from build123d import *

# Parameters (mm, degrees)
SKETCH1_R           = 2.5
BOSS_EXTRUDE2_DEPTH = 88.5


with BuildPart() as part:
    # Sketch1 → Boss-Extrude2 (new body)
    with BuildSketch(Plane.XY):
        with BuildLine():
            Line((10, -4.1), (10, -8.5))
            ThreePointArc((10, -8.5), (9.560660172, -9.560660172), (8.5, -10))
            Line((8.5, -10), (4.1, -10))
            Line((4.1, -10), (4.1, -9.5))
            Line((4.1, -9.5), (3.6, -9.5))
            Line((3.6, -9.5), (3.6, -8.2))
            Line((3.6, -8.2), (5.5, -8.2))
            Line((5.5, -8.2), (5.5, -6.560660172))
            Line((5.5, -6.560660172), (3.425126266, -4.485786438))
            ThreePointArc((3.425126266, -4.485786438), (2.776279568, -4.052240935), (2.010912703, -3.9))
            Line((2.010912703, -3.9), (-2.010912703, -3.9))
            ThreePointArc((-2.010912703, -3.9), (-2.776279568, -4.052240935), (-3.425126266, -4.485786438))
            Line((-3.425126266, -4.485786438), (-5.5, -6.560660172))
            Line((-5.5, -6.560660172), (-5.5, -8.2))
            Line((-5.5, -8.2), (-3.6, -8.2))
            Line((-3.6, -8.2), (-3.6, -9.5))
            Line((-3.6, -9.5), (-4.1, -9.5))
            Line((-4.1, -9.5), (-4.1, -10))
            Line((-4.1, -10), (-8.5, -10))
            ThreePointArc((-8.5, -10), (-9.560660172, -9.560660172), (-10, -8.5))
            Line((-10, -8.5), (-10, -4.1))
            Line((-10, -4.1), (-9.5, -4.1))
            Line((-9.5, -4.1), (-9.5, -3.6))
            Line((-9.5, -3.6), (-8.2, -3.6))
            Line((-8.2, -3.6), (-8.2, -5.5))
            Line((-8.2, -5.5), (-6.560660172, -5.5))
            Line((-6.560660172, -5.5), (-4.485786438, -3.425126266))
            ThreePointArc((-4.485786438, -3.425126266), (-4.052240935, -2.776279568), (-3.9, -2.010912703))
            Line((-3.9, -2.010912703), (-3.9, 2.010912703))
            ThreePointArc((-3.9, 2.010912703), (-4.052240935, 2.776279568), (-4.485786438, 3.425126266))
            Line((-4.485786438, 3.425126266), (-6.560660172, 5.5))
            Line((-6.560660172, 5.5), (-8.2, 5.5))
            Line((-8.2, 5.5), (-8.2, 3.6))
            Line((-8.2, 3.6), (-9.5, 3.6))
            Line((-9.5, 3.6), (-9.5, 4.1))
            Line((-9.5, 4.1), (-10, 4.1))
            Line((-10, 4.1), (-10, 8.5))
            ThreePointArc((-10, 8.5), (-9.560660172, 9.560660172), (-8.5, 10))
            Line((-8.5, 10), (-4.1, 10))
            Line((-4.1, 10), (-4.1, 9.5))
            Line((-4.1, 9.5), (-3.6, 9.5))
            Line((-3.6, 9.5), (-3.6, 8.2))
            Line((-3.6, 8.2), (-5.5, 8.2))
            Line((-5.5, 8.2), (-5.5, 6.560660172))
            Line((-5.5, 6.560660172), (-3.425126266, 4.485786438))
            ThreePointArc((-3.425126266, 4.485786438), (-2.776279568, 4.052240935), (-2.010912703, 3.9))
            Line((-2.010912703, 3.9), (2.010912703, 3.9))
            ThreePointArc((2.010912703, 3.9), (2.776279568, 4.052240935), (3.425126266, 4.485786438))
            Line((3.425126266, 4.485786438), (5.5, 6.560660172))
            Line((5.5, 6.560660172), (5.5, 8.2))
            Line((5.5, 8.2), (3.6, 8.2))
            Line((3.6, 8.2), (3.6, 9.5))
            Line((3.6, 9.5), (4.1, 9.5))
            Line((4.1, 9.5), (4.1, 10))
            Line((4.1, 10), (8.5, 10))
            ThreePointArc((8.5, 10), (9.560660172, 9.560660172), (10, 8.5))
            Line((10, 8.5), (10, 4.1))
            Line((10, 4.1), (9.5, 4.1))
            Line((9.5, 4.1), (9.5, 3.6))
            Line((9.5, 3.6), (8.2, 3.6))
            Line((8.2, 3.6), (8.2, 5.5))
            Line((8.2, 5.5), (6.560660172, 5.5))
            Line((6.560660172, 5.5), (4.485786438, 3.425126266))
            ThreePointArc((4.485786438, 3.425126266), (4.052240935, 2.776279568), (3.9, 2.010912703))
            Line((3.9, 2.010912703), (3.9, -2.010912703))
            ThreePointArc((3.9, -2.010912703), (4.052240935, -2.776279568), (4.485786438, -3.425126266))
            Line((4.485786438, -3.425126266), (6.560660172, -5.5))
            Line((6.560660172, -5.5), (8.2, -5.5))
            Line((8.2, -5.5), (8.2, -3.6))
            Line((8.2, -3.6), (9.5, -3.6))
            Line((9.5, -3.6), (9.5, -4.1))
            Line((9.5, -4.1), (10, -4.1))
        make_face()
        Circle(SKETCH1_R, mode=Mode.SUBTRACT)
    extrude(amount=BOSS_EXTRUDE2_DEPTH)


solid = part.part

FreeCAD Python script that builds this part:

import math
import FreeCAD as App
import Part
import Sketcher

V = App.Vector
Q = App.Units.Quantity

doc = App.newDocument("Part")
body = doc.addObject("PartDesign::Body", "Body")

sketch1 = doc.addObject("Sketcher::SketchObject", "Sketch")
body.addObject(sketch1)
sketch1.AttachmentSupport = (doc.XY_Plane, [""])
sketch1.MapMode = "FlatFace"
sketch1.addGeometry([
    Part.LineSegment(V(10, -8.5, 0), V(10, -4.1, 0)),
    Part.LineSegment(V(10, -4.1, 0), V(9.5, -4.1, 0)),
    Part.LineSegment(V(9.5, -4.1, 0), V(9.5, -3.6, 0)),
    Part.LineSegment(V(9.5, -3.6, 0), V(8.2, -3.6, 0)),
    Part.LineSegment(V(8.2, -3.6, 0), V(8.2, -5.5, 0)),
    Part.LineSegment(V(8.2, -5.5, 0), V(6.56, -5.5, 0)),
    Part.LineSegment(V(6.56, -5.5, 0), V(4.49, -3.43, 0)),
    Part.ArcOfCircle(Part.Circle(V(5.9, -2.01, 0), V(0, 0, 1), 2), math.radians(180), math.radians(225)),
    Part.LineSegment(V(3.9, -2.01, 0), V(3.9, 2.01, 0)),
    Part.ArcOfCircle(Part.Circle(V(5.9, 2.01, 0), V(0, 0, 1), 2), math.radians(135), math.radians(180)),
    Part.LineSegment(V(4.49, 3.43, 0), V(6.56, 5.5, 0)),
    Part.LineSegment(V(6.56, 5.5, 0), V(8.2, 5.5, 0)),
    Part.LineSegment(V(8.2, 5.5, 0), V(8.2, 3.6, 0)),
    Part.LineSegment(V(8.2, 3.6, 0), V(9.5, 3.6, 0)),
    Part.LineSegment(V(9.5, 3.6, 0), V(9.5, 4.1, 0)),
    Part.LineSegment(V(9.5, 4.1, 0), V(10, 4.1, 0)),
    Part.LineSegment(V(10, 4.1, 0), V(10, 8.5, 0)),
    Part.ArcOfCircle(Part.Circle(V(8.5, 8.5, 0), V(0, 0, 1), 1.5), math.radians(0), math.radians(90)),
    Part.LineSegment(V(8.5, 10, 0), V(4.1, 10, 0)),
    Part.LineSegment(V(4.1, 10, 0), V(4.1, 9.5, 0)),
    Part.LineSegment(V(4.1, 9.5, 0), V(3.6, 9.5, 0)),
    Part.LineSegment(V(3.6, 9.5, 0), V(3.6, 8.2, 0)),
    Part.LineSegment(V(3.6, 8.2, 0), V(5.5, 8.2, 0)),
    Part.LineSegment(V(5.5, 8.2, 0), V(5.5, 6.56, 0)),
    Part.LineSegment(V(5.5, 6.56, 0), V(3.43, 4.49, 0)),
    Part.ArcOfCircle(Part.Circle(V(2.01, 5.9, 0), V(0, 0, 1), 2), math.radians(-90), math.radians(-45)),
    Part.LineSegment(V(2.01, 3.9, 0), V(-2.01, 3.9, 0)),
    Part.ArcOfCircle(Part.Circle(V(-2.01, 5.9, 0), V(0, 0, 1), 2), math.radians(-135), math.radians(-90)),
    Part.LineSegment(V(-3.43, 4.49, 0), V(-5.5, 6.56, 0)),
    Part.LineSegment(V(-5.5, 6.56, 0), V(-5.5, 8.2, 0)),
    Part.LineSegment(V(-5.5, 8.2, 0), V(-3.6, 8.2, 0)),
    Part.LineSegment(V(-3.6, 8.2, 0), V(-3.6, 9.5, 0)),
    Part.LineSegment(V(-3.6, 9.5, 0), V(-4.1, 9.5, 0)),
    Part.LineSegment(V(-4.1, 9.5, 0), V(-4.1, 10, 0)),
    Part.LineSegment(V(-4.1, 10, 0), V(-8.5, 10, 0)),
    Part.ArcOfCircle(Part.Circle(V(-8.5, 8.5, 0), V(0, 0, 1), 1.5), math.radians(90), math.radians(180)),
    Part.LineSegment(V(-10, 8.5, 0), V(-10, 4.1, 0)),
    Part.LineSegment(V(-10, 4.1, 0), V(-9.5, 4.1, 0)),
    Part.LineSegment(V(-9.5, 4.1, 0), V(-9.5, 3.6, 0)),
    Part.LineSegment(V(-9.5, 3.6, 0), V(-8.2, 3.6, 0)),
    Part.LineSegment(V(-8.2, 3.6, 0), V(-8.2, 5.5, 0)),
    Part.LineSegment(V(-8.2, 5.5, 0), V(-6.56, 5.5, 0)),
    Part.LineSegment(V(-6.56, 5.5, 0), V(-4.49, 3.43, 0)),
    Part.ArcOfCircle(Part.Circle(V(-5.9, 2.01, 0), V(0, 0, 1), 2), math.radians(0), math.radians(45)),
    Part.LineSegment(V(-3.9, 2.01, 0), V(-3.9, -2.01, 0)),
    Part.ArcOfCircle(Part.Circle(V(-5.9, -2.01, 0), V(0, 0, 1), 2), math.radians(-45), math.radians(0)),
    Part.LineSegment(V(-4.49, -3.43, 0), V(-6.56, -5.5, 0)),
    Part.LineSegment(V(-6.56, -5.5, 0), V(-8.2, -5.5, 0)),
    Part.LineSegment(V(-8.2, -5.5, 0), V(-8.2, -3.6, 0)),
    Part.LineSegment(V(-8.2, -3.6, 0), V(-9.5, -3.6, 0)),
    Part.LineSegment(V(-9.5, -3.6, 0), V(-9.5, -4.1, 0)),
    Part.LineSegment(V(-9.5, -4.1, 0), V(-10, -4.1, 0)),
    Part.LineSegment(V(-10, -4.1, 0), V(-10, -8.5, 0)),
    Part.ArcOfCircle(Part.Circle(V(-8.5, -8.5, 0), V(0, 0, 1), 1.5), math.radians(180), math.radians(270)),
    Part.LineSegment(V(-8.5, -10, 0), V(-4.1, -10, 0)),
    Part.LineSegment(V(-4.1, -10, 0), V(-4.1, -9.5, 0)),
    Part.LineSegment(V(-4.1, -9.5, 0), V(-3.6, -9.5, 0)),
    Part.LineSegment(V(-3.6, -9.5, 0), V(-3.6, -8.2, 0)),
    Part.LineSegment(V(-3.6, -8.2, 0), V(-5.5, -8.2, 0)),
    Part.LineSegment(V(-5.5, -8.2, 0), V(-5.5, -6.56, 0)),
    Part.LineSegment(V(-5.5, -6.56, 0), V(-3.43, -4.49, 0)),
    Part.ArcOfCircle(Part.Circle(V(-2.01, -5.9, 0), V(0, 0, 1), 2), math.radians(90), math.radians(135)),
    Part.LineSegment(V(-2.01, -3.9, 0), V(2.01, -3.9, 0)),
    Part.ArcOfCircle(Part.Circle(V(2.01, -5.9, 0), V(0, 0, 1), 2), math.radians(45), math.radians(90)),
    Part.LineSegment(V(3.43, -4.49, 0), V(5.5, -6.56, 0)),
    Part.LineSegment(V(5.5, -6.56, 0), V(5.5, -8.2, 0)),
    Part.LineSegment(V(5.5, -8.2, 0), V(3.6, -8.2, 0)),
    Part.LineSegment(V(3.6, -8.2, 0), V(3.6, -9.5, 0)),
    Part.LineSegment(V(3.6, -9.5, 0), V(4.1, -9.5, 0)),
    Part.LineSegment(V(4.1, -9.5, 0), V(4.1, -10, 0)),
    Part.LineSegment(V(4.1, -10, 0), V(8.5, -10, 0)),
    Part.ArcOfCircle(Part.Circle(V(8.5, -8.5, 0), V(0, 0, 1), 1.5), math.radians(-90), math.radians(0)),
    Part.Circle(V(0, 0, 0), V(0, 0, 1), 2.5),
], False)
sketch1.addConstraint([
    Sketcher.Constraint("Coincident", 0, 2, 1, 1),
    Sketcher.Constraint("Coincident", 1, 2, 2, 1),
    Sketcher.Constraint("Coincident", 2, 2, 3, 1),
    Sketcher.Constraint("Coincident", 3, 2, 4, 1),
    Sketcher.Constraint("Coincident", 4, 2, 5, 1),
    Sketcher.Constraint("Coincident", 5, 2, 6, 1),
    Sketcher.Constraint("Tangent", 6, 2, 7, 2),
    Sketcher.Constraint("Tangent", 7, 1, 8, 1),
    Sketcher.Constraint("Tangent", 8, 2, 9, 2),
    Sketcher.Constraint("Tangent", 9, 1, 10, 1),
    Sketcher.Constraint("Coincident", 10, 2, 11, 1),
    Sketcher.Constraint("Coincident", 11, 2, 12, 1),
    Sketcher.Constraint("Coincident", 12, 2, 13, 1),
    Sketcher.Constraint("Coincident", 13, 2, 14, 1),
    Sketcher.Constraint("Coincident", 14, 2, 15, 1),
    Sketcher.Constraint("Coincident", 15, 2, 16, 1),
    Sketcher.Constraint("Tangent", 16, 2, 17, 1),
    Sketcher.Constraint("Tangent", 17, 2, 18, 1),
    Sketcher.Constraint("Coincident", 18, 2, 19, 1),
    Sketcher.Constraint("Coincident", 19, 2, 20, 1),
    Sketcher.Constraint("Coincident", 20, 2, 21, 1),
    Sketcher.Constraint("Coincident", 21, 2, 22, 1),
    Sketcher.Constraint("Coincident", 22, 2, 23, 1),
    Sketcher.Constraint("Coincident", 23, 2, 24, 1),
    Sketcher.Constraint("Tangent", 24, 2, 25, 2),
    Sketcher.Constraint("Tangent", 25, 1, 26, 1),
    Sketcher.Constraint("Tangent", 26, 2, 27, 2),
    Sketcher.Constraint("Tangent", 27, 1, 28, 1),
    Sketcher.Constraint("Coincident", 28, 2, 29, 1),
    Sketcher.Constraint("Coincident", 29, 2, 30, 1),
    Sketcher.Constraint("Coincident", 30, 2, 31, 1),
    Sketcher.Constraint("Coincident", 31, 2, 32, 1),
    Sketcher.Constraint("Coincident", 32, 2, 33, 1),
    Sketcher.Constraint("Coincident", 33, 2, 34, 1),
    Sketcher.Constraint("Tangent", 34, 2, 35, 1),
    Sketcher.Constraint("Tangent", 35, 2, 36, 1),
    Sketcher.Constraint("Coincident", 36, 2, 37, 1),
    Sketcher.Constraint("Coincident", 37, 2, 38, 1),
    Sketcher.Constraint("Coincident", 38, 2, 39, 1),
    Sketcher.Constraint("Coincident", 39, 2, 40, 1),
    Sketcher.Constraint("Coincident", 40, 2, 41, 1),
    Sketcher.Constraint("Coincident", 41, 2, 42, 1),
    Sketcher.Constraint("Tangent", 42, 2, 43, 2),
    Sketcher.Constraint("Tangent", 43, 1, 44, 1),
    Sketcher.Constraint("Tangent", 44, 2, 45, 2),
    Sketcher.Constraint("Tangent", 45, 1, 46, 1),
    Sketcher.Constraint("Coincident", 46, 2, 47, 1),
    Sketcher.Constraint("Coincident", 47, 2, 48, 1),
    Sketcher.Constraint("Coincident", 48, 2, 49, 1),
    Sketcher.Constraint("Coincident", 49, 2, 50, 1),
    Sketcher.Constraint("Coincident", 50, 2, 51, 1),
    Sketcher.Constraint("Coincident", 51, 2, 52, 1),
    Sketcher.Constraint("Tangent", 52, 2, 53, 1),
    Sketcher.Constraint("Tangent", 53, 2, 54, 1),
    Sketcher.Constraint("Coincident", 54, 2, 55, 1),
    Sketcher.Constraint("Coincident", 55, 2, 56, 1),
    Sketcher.Constraint("Coincident", 56, 2, 57, 1),
    Sketcher.Constraint("Coincident", 57, 2, 58, 1),
    Sketcher.Constraint("Coincident", 58, 2, 59, 1),
    Sketcher.Constraint("Coincident", 59, 2, 60, 1),
    Sketcher.Constraint("Tangent", 60, 2, 61, 2),
    Sketcher.Constraint("Tangent", 61, 1, 62, 1),
    Sketcher.Constraint("Tangent", 62, 2, 63, 2),
    Sketcher.Constraint("Tangent", 63, 1, 64, 1),
    Sketcher.Constraint("Coincident", 64, 2, 65, 1),
    Sketcher.Constraint("Coincident", 65, 2, 66, 1),
    Sketcher.Constraint("Coincident", 66, 2, 67, 1),
    Sketcher.Constraint("Coincident", 67, 2, 68, 1),
    Sketcher.Constraint("Coincident", 68, 2, 69, 1),
    Sketcher.Constraint("Coincident", 69, 2, 70, 1),
    Sketcher.Constraint("Tangent", 70, 2, 71, 1),
    Sketcher.Constraint("Tangent", 71, 2, 0, 1),
    Sketcher.Constraint("Vertical", 0),
    Sketcher.Constraint("Horizontal", 1),
    Sketcher.Constraint("Vertical", 2),
    Sketcher.Constraint("Horizontal", 3),
    Sketcher.Constraint("Vertical", 4),
    Sketcher.Constraint("Horizontal", 5),
    Sketcher.Constraint("Vertical", 8),
    Sketcher.Constraint("Horizontal", 11),
    Sketcher.Constraint("Vertical", 12),
    Sketcher.Constraint("Horizontal", 13),
    Sketcher.Constraint("Vertical", 14),
    Sketcher.Constraint("Horizontal", 15),
    Sketcher.Constraint("Vertical", 16),
    Sketcher.Constraint("Horizontal", 18),
    Sketcher.Constraint("Vertical", 19),
    Sketcher.Constraint("Horizontal", 20),
    Sketcher.Constraint("Vertical", 21),
    Sketcher.Constraint("Horizontal", 22),
    Sketcher.Constraint("Vertical", 23),
    Sketcher.Constraint("Horizontal", 26),
    Sketcher.Constraint("Vertical", 29),
    Sketcher.Constraint("Horizontal", 30),
    Sketcher.Constraint("Vertical", 31),
    Sketcher.Constraint("Horizontal", 32),
    Sketcher.Constraint("Vertical", 33),
    Sketcher.Constraint("Horizontal", 34),
    Sketcher.Constraint("Vertical", 36),
    Sketcher.Constraint("Horizontal", 37),
    Sketcher.Constraint("Vertical", 38),
    Sketcher.Constraint("Horizontal", 39),
    Sketcher.Constraint("Vertical", 40),
    Sketcher.Constraint("Horizontal", 41),
    Sketcher.Constraint("Vertical", 44),
    Sketcher.Constraint("Horizontal", 47),
    Sketcher.Constraint("Vertical", 48),
    Sketcher.Constraint("Horizontal", 49),
    Sketcher.Constraint("Vertical", 50),
    Sketcher.Constraint("Horizontal", 51),
    Sketcher.Constraint("Vertical", 52),
    Sketcher.Constraint("Horizontal", 54),
    Sketcher.Constraint("Vertical", 55),
    Sketcher.Constraint("Horizontal", 56),
    Sketcher.Constraint("Vertical", 57),
    Sketcher.Constraint("Horizontal", 58),
    Sketcher.Constraint("Vertical", 59),
    Sketcher.Constraint("Horizontal", 62),
    Sketcher.Constraint("Vertical", 65),
    Sketcher.Constraint("Horizontal", 66),
    Sketcher.Constraint("Vertical", 67),
    Sketcher.Constraint("Horizontal", 68),
    Sketcher.Constraint("Vertical", 69),
    Sketcher.Constraint("Horizontal", 70),
    Sketcher.Constraint("Coincident", 72, 3, -1, 1),
    Sketcher.Constraint("Equal", 7, 9),
    Sketcher.Constraint("Equal", 9, 25),
    Sketcher.Constraint("Equal", 25, 27),
    Sketcher.Constraint("Equal", 17, 35),
    Sketcher.Constraint("Equal", 27, 43),
    Sketcher.Constraint("Equal", 43, 45),
    Sketcher.Constraint("Equal", 35, 53),
    Sketcher.Constraint("Equal", 45, 61),
    Sketcher.Constraint("Equal", 61, 63),
    Sketcher.Constraint("Equal", 53, 71),
    Sketcher.Constraint("Symmetric", 7, 3, 43, 3, -1, 1),
    Sketcher.Constraint("Symmetric", 17, 3, 53, 3, -1, 1),
    Sketcher.Constraint("Symmetric", 25, 3, 61, 3, -1, 1),
    Sketcher.Constraint("Symmetric", 35, 3, 71, 3, -1, 1),
    Sketcher.Constraint("Symmetric", 1, 2, 37, 2, -1, 1),
    Sketcher.Constraint("Symmetric", 3, 2, 39, 2, -1, 1),
    Sketcher.Constraint("Symmetric", 5, 2, 41, 2, -1, 1),
    Sketcher.Constraint("Symmetric", 9, 1, 45, 1, -1, 1),
    Sketcher.Constraint("Symmetric", 11, 2, 47, 2, -1, 1),
    Sketcher.Constraint("Symmetric", 13, 2, 49, 2, -1, 1),
    Sketcher.Constraint("Symmetric", 19, 2, 55, 2, -1, 1),
    Sketcher.Constraint("Symmetric", 21, 2, 57, 2, -1, 1),
    Sketcher.Constraint("Symmetric", 23, 2, 59, 2, -1, 1),
    Sketcher.Constraint("Symmetric", 27, 1, 63, 1, -1, 1),
    Sketcher.Constraint("Symmetric", 29, 2, 65, 2, -1, 1),
    Sketcher.Constraint("Symmetric", 31, 2, 67, 2, -1, 1),
    Sketcher.Constraint("Symmetric", 17, 3, 35, 3, -2),
    Sketcher.Constraint("Symmetric", 24, 2, 27, 1, -2),
    Sketcher.Constraint("Symmetric", 22, 2, 29, 2, -2),
    Sketcher.Constraint("Symmetric", 20, 2, 31, 2, -2),
    Sketcher.Constraint("Symmetric", 14, 2, 37, 2, -2),
    Sketcher.Constraint("Symmetric", 12, 2, 39, 2, -2),
    Sketcher.Constraint("Symmetric", 10, 2, 41, 2, -2),
    Sketcher.Constraint("Perpendicular", 6, 10),
    Sketcher.Constraint("Parallel", 10, 24),
    Sketcher.Constraint("Perpendicular", 24, 28),
    Sketcher.Constraint("Horizontal", 1, 2, 50, 2),
    Sketcher.Constraint("Vertical", 33, 2, 54, 2),
    Sketcher.Constraint("Vertical", 19, 2, 68, 2),
    Sketcher.Constraint("Equal", 15, 20),
    Sketcher.Constraint("Equal", 70, 0),
    Sketcher.Constraint("Equal", 68, 2),
    Sketcher.Constraint("Equal", 66, 4),
    Sketcher.Constraint("Equal", 62, 8),
    Sketcher.Constraint("Equal", 14, 19),
    Sketcher.Constraint("Equal", 49, 21),
    Sketcher.Constraint("Equal", 47, 23),
    Sketcher.Constraint("Equal", 10, 24),
    Sketcher.Constraint("Diameter", 72, Q("5 mm")),
    Sketcher.Constraint("Radius", 7, Q("2 mm")),
    Sketcher.Constraint("Radius", 17, Q("1.5 mm")),
    Sketcher.Constraint("DistanceX", 1, 2, 1, 1, Q("0.5 mm")),
    Sketcher.Constraint("DistanceX", 3, 2, 3, 1, Q("1.3 mm")),
    Sketcher.Constraint("DistanceX", 18, 2, 18, 1, Q("4.4 mm")),
    Sketcher.Constraint("DistanceX", 22, 1, 22, 2, Q("1.9 mm")),
    Sketcher.Constraint("DistanceX", -1, 1, 0, 2, Q("10 mm")),
    Sketcher.Constraint("DistanceX", -1, 1, 7, 3, Q("5.9 mm")),
    Sketcher.Constraint("DistanceX", 5, 2, 5, 1, Q("1.63934 mm")),
])
pad1 = doc.addObject("PartDesign::Pad", "Pad")
body.addObject(pad1)
pad1.Profile = sketch1
pad1.Length = 88.5

doc.recompute()
